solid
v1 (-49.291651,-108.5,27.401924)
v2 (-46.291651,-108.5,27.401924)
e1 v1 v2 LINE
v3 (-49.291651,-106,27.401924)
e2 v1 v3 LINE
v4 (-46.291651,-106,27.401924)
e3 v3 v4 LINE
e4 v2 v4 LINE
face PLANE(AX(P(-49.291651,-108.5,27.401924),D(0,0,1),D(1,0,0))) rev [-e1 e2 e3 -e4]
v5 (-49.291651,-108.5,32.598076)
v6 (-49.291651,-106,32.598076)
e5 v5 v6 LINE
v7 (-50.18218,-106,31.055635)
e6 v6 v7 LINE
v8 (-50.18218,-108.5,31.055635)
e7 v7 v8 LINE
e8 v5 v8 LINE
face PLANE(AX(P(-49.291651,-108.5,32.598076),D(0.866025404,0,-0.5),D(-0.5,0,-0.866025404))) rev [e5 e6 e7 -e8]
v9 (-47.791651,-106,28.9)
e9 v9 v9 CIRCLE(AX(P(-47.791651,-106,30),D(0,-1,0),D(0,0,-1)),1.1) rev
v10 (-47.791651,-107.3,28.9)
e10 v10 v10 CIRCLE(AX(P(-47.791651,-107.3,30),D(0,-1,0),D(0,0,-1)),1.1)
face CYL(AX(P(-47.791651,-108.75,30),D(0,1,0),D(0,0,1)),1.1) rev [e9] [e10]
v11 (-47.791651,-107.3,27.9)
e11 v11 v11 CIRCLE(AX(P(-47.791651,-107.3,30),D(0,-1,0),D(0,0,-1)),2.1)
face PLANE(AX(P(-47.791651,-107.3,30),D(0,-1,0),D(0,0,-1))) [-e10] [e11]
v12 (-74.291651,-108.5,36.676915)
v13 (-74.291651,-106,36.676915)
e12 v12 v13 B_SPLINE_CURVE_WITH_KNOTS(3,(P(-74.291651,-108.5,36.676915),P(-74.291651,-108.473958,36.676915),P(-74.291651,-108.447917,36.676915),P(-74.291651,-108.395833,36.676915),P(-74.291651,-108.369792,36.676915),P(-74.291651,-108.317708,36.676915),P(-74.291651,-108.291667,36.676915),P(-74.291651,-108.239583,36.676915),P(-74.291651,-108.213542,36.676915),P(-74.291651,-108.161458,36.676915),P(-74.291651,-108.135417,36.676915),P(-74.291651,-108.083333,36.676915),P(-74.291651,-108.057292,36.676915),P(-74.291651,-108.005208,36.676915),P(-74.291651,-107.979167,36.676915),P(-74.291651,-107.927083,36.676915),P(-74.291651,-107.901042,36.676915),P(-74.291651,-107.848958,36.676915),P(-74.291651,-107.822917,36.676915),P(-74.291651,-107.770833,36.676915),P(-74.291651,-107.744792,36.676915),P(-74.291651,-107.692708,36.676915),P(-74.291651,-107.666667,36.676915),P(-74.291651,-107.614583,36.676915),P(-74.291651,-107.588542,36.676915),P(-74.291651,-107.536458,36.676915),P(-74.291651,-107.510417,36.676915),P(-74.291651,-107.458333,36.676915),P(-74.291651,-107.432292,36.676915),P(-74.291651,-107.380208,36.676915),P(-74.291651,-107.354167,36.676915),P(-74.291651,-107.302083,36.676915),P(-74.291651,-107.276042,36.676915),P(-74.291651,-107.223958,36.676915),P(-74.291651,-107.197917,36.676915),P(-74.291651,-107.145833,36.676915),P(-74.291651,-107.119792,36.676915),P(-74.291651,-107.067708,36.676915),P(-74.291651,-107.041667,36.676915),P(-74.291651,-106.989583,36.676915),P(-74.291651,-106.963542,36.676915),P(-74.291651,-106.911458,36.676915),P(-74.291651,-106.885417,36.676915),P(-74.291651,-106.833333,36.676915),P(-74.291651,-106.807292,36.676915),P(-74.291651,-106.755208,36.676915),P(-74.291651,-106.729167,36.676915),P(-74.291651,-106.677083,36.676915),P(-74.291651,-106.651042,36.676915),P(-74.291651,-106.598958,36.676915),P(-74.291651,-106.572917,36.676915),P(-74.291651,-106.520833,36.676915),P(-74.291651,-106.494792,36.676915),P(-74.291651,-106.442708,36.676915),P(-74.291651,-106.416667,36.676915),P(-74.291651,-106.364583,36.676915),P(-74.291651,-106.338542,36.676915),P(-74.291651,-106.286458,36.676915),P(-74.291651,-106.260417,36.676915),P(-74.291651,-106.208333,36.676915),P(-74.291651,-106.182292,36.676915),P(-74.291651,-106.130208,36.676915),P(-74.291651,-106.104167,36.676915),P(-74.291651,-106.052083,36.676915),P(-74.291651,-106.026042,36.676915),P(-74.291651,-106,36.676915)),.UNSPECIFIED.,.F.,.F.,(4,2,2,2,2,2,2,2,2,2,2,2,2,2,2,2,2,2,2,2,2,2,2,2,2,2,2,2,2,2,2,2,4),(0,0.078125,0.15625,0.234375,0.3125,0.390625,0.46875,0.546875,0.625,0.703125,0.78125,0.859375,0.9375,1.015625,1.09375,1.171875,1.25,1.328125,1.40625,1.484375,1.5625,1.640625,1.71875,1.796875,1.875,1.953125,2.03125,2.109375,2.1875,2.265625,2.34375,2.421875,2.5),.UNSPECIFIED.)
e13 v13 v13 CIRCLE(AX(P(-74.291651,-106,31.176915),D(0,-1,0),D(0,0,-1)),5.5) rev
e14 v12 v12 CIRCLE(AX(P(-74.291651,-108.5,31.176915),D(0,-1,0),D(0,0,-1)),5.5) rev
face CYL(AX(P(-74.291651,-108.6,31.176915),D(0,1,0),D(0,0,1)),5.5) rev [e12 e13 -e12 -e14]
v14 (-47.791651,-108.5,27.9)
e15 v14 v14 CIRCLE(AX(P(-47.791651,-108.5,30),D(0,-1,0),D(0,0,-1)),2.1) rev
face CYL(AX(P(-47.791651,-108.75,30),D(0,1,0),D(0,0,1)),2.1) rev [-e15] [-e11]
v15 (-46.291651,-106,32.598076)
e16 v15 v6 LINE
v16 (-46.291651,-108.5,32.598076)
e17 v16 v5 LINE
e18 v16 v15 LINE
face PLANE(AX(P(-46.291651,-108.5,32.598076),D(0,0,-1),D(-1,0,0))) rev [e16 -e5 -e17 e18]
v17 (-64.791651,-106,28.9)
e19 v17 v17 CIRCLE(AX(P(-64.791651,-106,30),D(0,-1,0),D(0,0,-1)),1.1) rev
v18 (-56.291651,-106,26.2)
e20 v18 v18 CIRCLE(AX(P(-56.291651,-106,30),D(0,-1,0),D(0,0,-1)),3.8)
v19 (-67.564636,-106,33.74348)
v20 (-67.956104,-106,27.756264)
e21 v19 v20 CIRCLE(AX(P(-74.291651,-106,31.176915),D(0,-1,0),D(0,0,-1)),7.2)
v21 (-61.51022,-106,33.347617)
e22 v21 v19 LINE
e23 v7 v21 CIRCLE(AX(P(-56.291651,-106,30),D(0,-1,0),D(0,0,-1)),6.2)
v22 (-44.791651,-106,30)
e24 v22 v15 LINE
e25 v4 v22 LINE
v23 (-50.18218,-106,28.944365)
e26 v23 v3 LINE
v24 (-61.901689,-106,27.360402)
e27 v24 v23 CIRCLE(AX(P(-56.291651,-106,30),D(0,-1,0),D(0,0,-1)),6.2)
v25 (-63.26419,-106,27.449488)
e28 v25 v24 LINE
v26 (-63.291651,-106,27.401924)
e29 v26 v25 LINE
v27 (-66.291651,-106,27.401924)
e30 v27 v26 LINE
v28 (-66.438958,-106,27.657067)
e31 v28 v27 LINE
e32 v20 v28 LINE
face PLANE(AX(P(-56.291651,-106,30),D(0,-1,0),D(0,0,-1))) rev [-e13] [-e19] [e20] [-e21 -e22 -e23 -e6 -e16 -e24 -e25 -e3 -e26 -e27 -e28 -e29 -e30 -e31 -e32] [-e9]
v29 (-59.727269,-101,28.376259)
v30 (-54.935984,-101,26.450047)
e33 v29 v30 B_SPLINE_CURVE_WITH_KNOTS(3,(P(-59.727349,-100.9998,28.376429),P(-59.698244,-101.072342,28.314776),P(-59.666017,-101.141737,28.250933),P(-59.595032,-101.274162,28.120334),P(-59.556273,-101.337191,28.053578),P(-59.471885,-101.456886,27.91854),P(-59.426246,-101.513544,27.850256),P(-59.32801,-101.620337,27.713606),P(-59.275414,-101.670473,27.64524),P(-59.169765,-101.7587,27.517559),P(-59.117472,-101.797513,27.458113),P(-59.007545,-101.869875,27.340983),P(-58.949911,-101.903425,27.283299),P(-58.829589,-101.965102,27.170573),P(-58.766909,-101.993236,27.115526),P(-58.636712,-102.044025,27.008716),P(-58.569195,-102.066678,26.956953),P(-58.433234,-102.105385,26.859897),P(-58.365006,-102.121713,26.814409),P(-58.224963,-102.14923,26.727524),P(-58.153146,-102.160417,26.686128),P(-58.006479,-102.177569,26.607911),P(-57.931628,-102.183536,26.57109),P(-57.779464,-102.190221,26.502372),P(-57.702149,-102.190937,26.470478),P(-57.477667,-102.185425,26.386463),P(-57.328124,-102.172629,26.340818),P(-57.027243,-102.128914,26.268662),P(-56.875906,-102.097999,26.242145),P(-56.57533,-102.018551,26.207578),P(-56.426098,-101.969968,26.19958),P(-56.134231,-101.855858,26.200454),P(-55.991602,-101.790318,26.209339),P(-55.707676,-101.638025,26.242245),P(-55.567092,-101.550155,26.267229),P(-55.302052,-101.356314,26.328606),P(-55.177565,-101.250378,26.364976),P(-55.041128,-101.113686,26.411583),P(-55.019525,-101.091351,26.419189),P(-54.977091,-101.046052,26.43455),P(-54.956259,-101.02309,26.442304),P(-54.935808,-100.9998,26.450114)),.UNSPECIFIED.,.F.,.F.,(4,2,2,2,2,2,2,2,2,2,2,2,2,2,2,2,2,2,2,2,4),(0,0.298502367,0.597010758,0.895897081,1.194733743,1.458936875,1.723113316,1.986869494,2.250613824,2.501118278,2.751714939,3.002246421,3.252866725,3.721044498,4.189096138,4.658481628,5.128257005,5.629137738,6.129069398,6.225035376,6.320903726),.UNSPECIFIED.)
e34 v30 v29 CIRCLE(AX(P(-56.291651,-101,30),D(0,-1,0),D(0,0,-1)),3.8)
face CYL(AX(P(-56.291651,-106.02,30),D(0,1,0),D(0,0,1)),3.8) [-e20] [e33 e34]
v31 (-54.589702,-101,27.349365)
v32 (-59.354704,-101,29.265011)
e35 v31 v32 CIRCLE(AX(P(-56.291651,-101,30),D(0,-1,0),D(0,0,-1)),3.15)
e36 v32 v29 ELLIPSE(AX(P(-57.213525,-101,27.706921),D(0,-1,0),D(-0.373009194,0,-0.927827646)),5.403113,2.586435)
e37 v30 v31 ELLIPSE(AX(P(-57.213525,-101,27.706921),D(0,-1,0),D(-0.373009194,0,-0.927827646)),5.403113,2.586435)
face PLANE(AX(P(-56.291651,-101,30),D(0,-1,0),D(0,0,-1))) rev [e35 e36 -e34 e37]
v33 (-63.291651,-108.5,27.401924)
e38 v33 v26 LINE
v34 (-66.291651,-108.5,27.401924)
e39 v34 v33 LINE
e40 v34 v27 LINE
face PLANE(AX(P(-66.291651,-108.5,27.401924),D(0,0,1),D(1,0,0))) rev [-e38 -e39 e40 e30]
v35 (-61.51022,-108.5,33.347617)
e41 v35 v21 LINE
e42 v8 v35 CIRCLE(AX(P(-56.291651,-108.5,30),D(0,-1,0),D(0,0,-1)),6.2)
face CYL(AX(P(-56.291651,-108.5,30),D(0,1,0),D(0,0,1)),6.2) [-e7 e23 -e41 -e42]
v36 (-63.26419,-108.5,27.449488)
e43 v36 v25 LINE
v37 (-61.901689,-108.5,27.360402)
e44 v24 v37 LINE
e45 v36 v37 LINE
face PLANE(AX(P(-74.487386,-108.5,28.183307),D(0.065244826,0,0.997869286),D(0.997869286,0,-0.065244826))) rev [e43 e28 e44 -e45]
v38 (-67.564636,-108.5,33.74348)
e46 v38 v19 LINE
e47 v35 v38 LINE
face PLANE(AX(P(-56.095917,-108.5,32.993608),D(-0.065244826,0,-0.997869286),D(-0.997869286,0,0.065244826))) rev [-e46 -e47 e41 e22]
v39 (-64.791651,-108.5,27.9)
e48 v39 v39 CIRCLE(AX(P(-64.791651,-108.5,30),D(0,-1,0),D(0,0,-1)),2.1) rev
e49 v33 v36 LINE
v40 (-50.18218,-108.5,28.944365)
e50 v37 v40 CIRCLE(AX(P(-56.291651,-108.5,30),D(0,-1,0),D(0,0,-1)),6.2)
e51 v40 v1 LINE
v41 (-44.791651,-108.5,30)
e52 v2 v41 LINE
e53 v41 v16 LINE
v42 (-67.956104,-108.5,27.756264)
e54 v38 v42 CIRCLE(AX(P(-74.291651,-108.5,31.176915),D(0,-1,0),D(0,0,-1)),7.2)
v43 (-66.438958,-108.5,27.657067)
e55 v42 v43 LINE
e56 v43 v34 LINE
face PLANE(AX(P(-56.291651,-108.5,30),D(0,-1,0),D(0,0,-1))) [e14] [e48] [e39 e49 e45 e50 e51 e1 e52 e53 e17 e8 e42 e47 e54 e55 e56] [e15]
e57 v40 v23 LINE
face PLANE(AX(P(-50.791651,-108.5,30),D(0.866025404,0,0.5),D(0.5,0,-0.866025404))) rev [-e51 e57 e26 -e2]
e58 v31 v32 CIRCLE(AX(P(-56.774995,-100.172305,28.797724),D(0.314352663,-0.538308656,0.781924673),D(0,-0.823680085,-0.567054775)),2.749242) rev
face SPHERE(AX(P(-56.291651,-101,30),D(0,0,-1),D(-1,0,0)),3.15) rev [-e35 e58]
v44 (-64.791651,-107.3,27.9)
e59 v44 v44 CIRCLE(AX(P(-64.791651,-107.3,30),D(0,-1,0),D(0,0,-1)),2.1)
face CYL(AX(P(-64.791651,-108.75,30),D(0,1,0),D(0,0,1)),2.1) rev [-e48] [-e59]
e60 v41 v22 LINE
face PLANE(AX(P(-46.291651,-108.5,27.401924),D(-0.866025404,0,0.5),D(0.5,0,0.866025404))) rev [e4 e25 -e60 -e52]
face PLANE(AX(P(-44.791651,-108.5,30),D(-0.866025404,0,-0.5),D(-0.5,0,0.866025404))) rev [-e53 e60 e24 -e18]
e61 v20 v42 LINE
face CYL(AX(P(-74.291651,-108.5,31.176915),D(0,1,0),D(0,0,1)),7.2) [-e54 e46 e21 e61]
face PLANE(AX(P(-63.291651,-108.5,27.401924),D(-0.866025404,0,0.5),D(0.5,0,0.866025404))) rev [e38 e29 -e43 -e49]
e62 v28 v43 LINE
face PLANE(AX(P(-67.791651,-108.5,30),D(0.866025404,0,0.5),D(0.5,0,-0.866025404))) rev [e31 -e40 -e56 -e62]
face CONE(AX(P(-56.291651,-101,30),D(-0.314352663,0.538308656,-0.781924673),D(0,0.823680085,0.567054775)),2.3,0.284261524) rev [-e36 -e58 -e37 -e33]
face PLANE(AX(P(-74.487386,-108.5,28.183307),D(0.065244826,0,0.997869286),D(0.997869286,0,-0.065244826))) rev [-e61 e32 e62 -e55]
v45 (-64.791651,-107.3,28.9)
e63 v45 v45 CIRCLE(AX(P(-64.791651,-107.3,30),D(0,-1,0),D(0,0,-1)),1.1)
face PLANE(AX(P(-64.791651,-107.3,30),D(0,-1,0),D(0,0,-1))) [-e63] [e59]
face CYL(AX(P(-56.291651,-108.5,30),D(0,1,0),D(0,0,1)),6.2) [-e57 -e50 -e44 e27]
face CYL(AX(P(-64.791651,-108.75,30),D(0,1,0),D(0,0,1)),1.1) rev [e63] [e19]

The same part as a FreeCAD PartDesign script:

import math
import FreeCAD as App
import Part
import Sketcher

V = App.Vector
Q = App.Units.Quantity


def add_polygon(sketch, points):
    """Adds a closed chain of lines whose ends are joined by coincident constraints."""
    first, n = sketch.GeometryCount, len(points)
    for a, b in zip(points, points[1:] + points[:1]):
        sketch.addGeometry(Part.LineSegment(App.Vector(*a, 0), App.Vector(*b, 0)), False)
    for i in range(n):
        sketch.addConstraint(Sketcher.Constraint("Coincident", first + i, 2, first + (i + 1) % n, 1))

doc = App.newDocument("Part")
body = doc.addObject("PartDesign::Body", "Body")

# Sketch on XZ plane
sketch1 = doc.addObject("Sketcher::SketchObject", "Sketch")
body.addObject(sketch1)
sketch1.AttachmentSupport = (doc.XZ_Plane, [""])
sketch1.MapMode = "FlatFace"
sketch1.AttachmentOffset = App.Placement(V(0, 0, 101), App.Rotation())
sketch1.addGeometry(Part.Circle(V(-56.3, 30, 0), V(0, 0, 1), 3.8), False)
sketch1.addConstraint(Sketcher.Constraint("Diameter", 0, Q("7.6 mm")))
sketch1.addConstraint(Sketcher.Constraint("DistanceY", -1, 1, 0, 3, Q("30 mm")))
sketch1.addConstraint(Sketcher.Constraint("DistanceX", 0, 3, -1, 1, Q("56.291651 mm")))
pad1 = doc.addObject("PartDesign::Pad", "Pad")
body.addObject(pad1)
pad1.Profile = sketch1
pad1.Length = 5.02

# Sketch on XZ plane
sketch2 = doc.addObject("Sketcher::SketchObject", "Sketch001")
body.addObject(sketch2)
sketch2.AttachmentSupport = (doc.XZ_Plane, [""])
sketch2.MapMode = "FlatFace"
sketch2.AttachmentOffset = App.Placement(V(0, 0, 106), App.Rotation())
sketch2.addGeometry(Part.Circle(V(-56, 30, 0), V(0, 0, 1), 6), False)
sketch2.addConstraint(Sketcher.Constraint("Diameter", 0, Q("12.4 mm")))
sketch2.addConstraint(Sketcher.Constraint("DistanceY", -1, 1, 0, 3, Q("30 mm")))
sketch2.addConstraint(Sketcher.Constraint("DistanceX", 0, 3, -1, 1, Q("56.291651 mm")))
pad2 = doc.addObject("PartDesign::Pad", "Pad001")
body.addObject(pad2)
pad2.Profile = sketch2
pad2.Length = 2.5

# Sketch on XZ plane
sketch3 = doc.addObject("Sketcher::SketchObject", "Sketch002")
body.addObject(sketch3)
sketch3.AttachmentSupport = (doc.XZ_Plane, [""])
sketch3.MapMode = "FlatFace"
sketch3.AttachmentOffset = App.Placement(V(0, 0, 106), App.Rotation())
add_polygon(sketch3, [(-44.8, 30), (-46.3, 32.6), (-49.3, 32.6), (-50.8, 30), (-49.3, 27.4), (-46.3, 27.4)])  # lines 0-5
sketch3.addConstraint(Sketcher.Constraint("Horizontal", 1))
sketch3.addConstraint(Sketcher.Constraint("Horizontal", 4))
sketch3.addConstraint(Sketcher.Constraint("Parallel", 0, 3))
sketch3.addConstraint(Sketcher.Constraint("Parallel", 2, 5))
sketch3.addConstraint(Sketcher.Constraint("Horizontal", 2, 2, 5, 2))
sketch3.addConstraint(Sketcher.Constraint("Vertical", 1, 2, 3, 2))
sketch3.addConstraint(Sketcher.Constraint("Vertical", 0, 2, 4, 2))
sketch3.addConstraint(Sketcher.Constraint("DistanceX", 1, 2, 1, 1, Q("3 mm")))
sketch3.addConstraint(Sketcher.Constraint("Angle", 0, Q("120 deg")))
sketch3.addConstraint(Sketcher.Constraint("Distance", 0, Q("3 mm")))
sketch3.addConstraint(Sketcher.Constraint("DistanceY", -1, 1, 2, 2, Q("30 mm")))
sketch3.addConstraint(Sketcher.Constraint("DistanceX", 0, 2, -1, 1, Q("46.291651 mm")))
pad3 = doc.addObject("PartDesign::Pad", "Pad002")
body.addObject(pad3)
pad3.Profile = sketch3
pad3.Length = 2.5

# Sketch on XZ plane
sketch4 = doc.addObject("Sketcher::SketchObject", "Sketch003")
body.addObject(sketch4)
sketch4.AttachmentSupport = (doc.XZ_Plane, [""])
sketch4.MapMode = "FlatFace"
sketch4.AttachmentOffset = App.Placement(V(0, 0, 106), App.Rotation())
add_polygon(sketch4, [(-61.8, 30), (-63.3, 32.6), (-66.3, 32.6), (-67.8, 30), (-66.3, 27.4), (-63.3, 27.4)])  # lines 0-5
sketch4.addConstraint(Sketcher.Constraint("Horizontal", 1))
sketch4.addConstraint(Sketcher.Constraint("Horizontal", 4))
sketch4.addConstraint(Sketcher.Constraint("Parallel", 0, 3))
sketch4.addConstraint(Sketcher.Constraint("Parallel", 2, 5))
sketch4.addConstraint(Sketcher.Constraint("Horizontal", 2, 2, 5, 2))
sketch4.addConstraint(Sketcher.Constraint("Vertical", 1, 2, 3, 2))
sketch4.addConstraint(Sketcher.Constraint("Vertical", 0, 2, 4, 2))
sketch4.addConstraint(Sketcher.Constraint("DistanceX", 1, 2, 1, 1, Q("3 mm")))
sketch4.addConstraint(Sketcher.Constraint("Angle", 0, Q("120 deg")))
sketch4.addConstraint(Sketcher.Constraint("Distance", 0, Q("3 mm")))
sketch4.addConstraint(Sketcher.Constraint("DistanceY", -1, 1, 2, 2, Q("30 mm")))
sketch4.addConstraint(Sketcher.Constraint("DistanceX", 0, 2, -1, 1, Q("63.291651 mm")))
pad4 = doc.addObject("PartDesign::Pad", "Pad003")
body.addObject(pad4)
pad4.Profile = sketch4
pad4.Length = 2.5

# Sketch on XZ plane
sketch5 = doc.addObject("Sketcher::SketchObject", "Sketch004")
body.addObject(sketch5)
sketch5.AttachmentSupport = (doc.XZ_Plane, [""])
sketch5.MapMode = "FlatFace"
sketch5.AttachmentOffset = App.Placement(V(0, 0, 101), App.Rotation())
sketch5.addGeometry(Part.LineSegment(V(-56.3, 33.1, 0), V(-56.3, 26.9, 0)), False)
sketch5.addGeometry(Part.ArcOfCircle(Part.Circle(V(-56.3, 30, 0), V(0, 0, 1), 3.1), math.radians(-90), math.radians(90)), False)
sketch5.addGeometry(Part.LineSegment(V(-56.3, 26.9, 0), V(-56.3, 33.1, 0)), True)  # axis
sketch5.addConstraint(Sketcher.Constraint("Coincident", 0, 1, 1, 2))
sketch5.addConstraint(Sketcher.Constraint("Coincident", 1, 1, 0, 2))
sketch5.addConstraint(Sketcher.Constraint("Vertical", 0))
sketch5.addConstraint(Sketcher.Constraint("Vertical", 2))
sketch5.addConstraint(Sketcher.Constraint("Coincident", 2, 1, 1, 1))
sketch5.addConstraint(Sketcher.Constraint("Vertical", 1, 3, 0, 1))
sketch5.addConstraint(Sketcher.Constraint("Equal", 0, 2))
sketch5.addConstraint(Sketcher.Constraint("Radius", 1, Q("3.15 mm")))
sketch5.addConstraint(Sketcher.Constraint("DistanceY", -1, 1, 1, 3, Q("30 mm")))
sketch5.addConstraint(Sketcher.Constraint("DistanceX", 1, 3, -1, 1, Q("56.291651 mm")))
groove = doc.addObject("PartDesign::Groove", "Groove")
body.addObject(groove)
groove.Profile = sketch5
groove.ReferenceAxis = (sketch5, ["Axis0"])
groove.Angle = 360

# Sketch on XZ plane
sketch6 = doc.addObject("Sketcher::SketchObject", "Sketch005")
body.addObject(sketch6)
sketch6.AttachmentSupport = (doc.XZ_Plane, [""])
sketch6.MapMode = "FlatFace"
sketch6.AttachmentOffset = App.Placement(V(0, 0, 106), App.Rotation())
add_polygon(sketch6, [(-56, 33), (-74, 34), (-74, 28), (-56, 27)])  # lines 0-3
sketch6.addConstraint(Sketcher.Constraint("Perpendicular", 0, 1))
sketch6.addConstraint(Sketcher.Constraint("Perpendicular", 1, 2))
sketch6.addConstraint(Sketcher.Constraint("Perpendicular", 2, 3))
sketch6.addConstraint(Sketcher.Constraint("Distance", 1, Q("6 mm")))
sketch6.addConstraint(Sketcher.Constraint("DistanceX", 1, 2, 2, 2, Q("18 mm")))
sketch6.addConstraint(Sketcher.Constraint("DistanceY", 1, 2, 3, 2, Q("4.810301 mm")))
sketch6.addConstraint(Sketcher.Constraint("DistanceX", 0, 2, -1, 1, Q("74.095917 mm")))
sketch6.addConstraint(Sketcher.Constraint("DistanceY", -1, 1, 0, 2, Q("34.170522 mm")))
pad5 = doc.addObject("PartDesign::Pad", "Pad004")
body.addObject(pad5)
pad5.Profile = sketch6
pad5.Length = 2.5

# Sketch on XZ plane
sketch7 = doc.addObject("Sketcher::SketchObject", "Sketch006")
body.addObject(sketch7)
sketch7.AttachmentSupport = (doc.XZ_Plane, [""])
sketch7.MapMode = "FlatFace"
sketch7.AttachmentOffset = App.Placement(V(0, 0, 106), App.Rotation())
sketch7.addGeometry(Part.Circle(V(-74, 31, 0), V(0, 0, 1), 7), False)
sketch7.addConstraint(Sketcher.Constraint("Diameter", 0, Q("14.4 mm")))
sketch7.addConstraint(Sketcher.Constraint("DistanceX", 0, 3, -1, 1, Q("74.291651 mm")))
sketch7.addConstraint(Sketcher.Constraint("DistanceY", -1, 1, 0, 3, Q("31.176915 mm")))
pad6 = doc.addObject("PartDesign::Pad", "Pad005")
body.addObject(pad6)
pad6.Profile = sketch7
pad6.Length = 2.5

# Sketch on XZ plane
sketch8 = doc.addObject("Sketcher::SketchObject", "Sketch007")
body.addObject(sketch8)
sketch8.AttachmentSupport = (doc.XZ_Plane, [""])
sketch8.MapMode = "FlatFace"
sketch8.AttachmentOffset = App.Placement(V(0, 0, 105.9), App.Rotation())
sketch8.addGeometry(Part.Circle(V(-74, 31, 0), V(0, 0, 1), 6), False)
sketch8.addConstraint(Sketcher.Constraint("Diameter", 0, Q("11 mm")))
sketch8.addConstraint(Sketcher.Constraint("DistanceX", 0, 3, -1, 1, Q("74.291651 mm")))
sketch8.addConstraint(Sketcher.Constraint("DistanceY", -1, 1, 0, 3, Q("31.176915 mm")))
pocket1 = doc.addObject("PartDesign::Pocket", "Pocket")
body.addObject(pocket1)
pocket1.Profile = sketch8
pocket1.Length = 2.7
pocket1.Reversed = True

# Sketch on XZ plane
sketch9 = doc.addObject("Sketcher::SketchObject", "Sketch008")
body.addObject(sketch9)
sketch9.AttachmentSupport = (doc.XZ_Plane, [""])
sketch9.MapMode = "FlatFace"
sketch9.AttachmentOffset = App.Placement(V(0, 0, 105), App.Rotation())
sketch9.addGeometry(Part.Circle(V(-47.8, 30, 0), V(0, 0, 1), 1.1), False)
sketch9.addConstraint(Sketcher.Constraint("Diameter", 0, Q("2.2 mm")))
sketch9.addConstraint(Sketcher.Constraint("DistanceY", -1, 1, 0, 3, Q("30 mm")))
sketch9.addConstraint(Sketcher.Constraint("DistanceX", 0, 3, -1, 1, Q("47.791651 mm")))
pocket2 = doc.addObject("PartDesign::Pocket", "Pocket001")
body.addObject(pocket2)
pocket2.Profile = sketch9
pocket2.Length = 3.75
pocket2.Reversed = True

# Sketch on XZ plane
sketch10 = doc.addObject("Sketcher::SketchObject", "Sketch009")
body.addObject(sketch10)
sketch10.AttachmentSupport = (doc.XZ_Plane, [""])
sketch10.MapMode = "FlatFace"
sketch10.AttachmentOffset = App.Placement(V(0, 0, 107.3), App.Rotation())
sketch10.addGeometry(Part.Circle(V(-47.8, 30, 0), V(0, 0, 1), 2.1), False)
sketch10.addConstraint(Sketcher.Constraint("Diameter", 0, Q("4.2 mm")))
sketch10.addConstraint(Sketcher.Constraint("DistanceY", -1, 1, 0, 3, Q("30 mm")))
sketch10.addConstraint(Sketcher.Constraint("DistanceX", 0, 3, -1, 1, Q("47.791651 mm")))
pocket3 = doc.addObject("PartDesign::Pocket", "Pocket002")
body.addObject(pocket3)
pocket3.Profile = sketch10
pocket3.Length = 1.45
pocket3.Reversed = True

# Sketch on XZ plane
sketch11 = doc.addObject("Sketcher::SketchObject", "Sketch010")
body.addObject(sketch11)
sketch11.AttachmentSupport = (doc.XZ_Plane, [""])
sketch11.MapMode = "FlatFace"
sketch11.AttachmentOffset = App.Placement(V(0, 0, 105), App.Rotation())
sketch11.addGeometry(Part.Circle(V(-64.8, 30, 0), V(0, 0, 1), 1.1), False)
sketch11.addConstraint(Sketcher.Constraint("Diameter", 0, Q("2.2 mm")))
sketch11.addConstraint(Sketcher.Constraint("DistanceY", -1, 1, 0, 3, Q("30 mm")))
sketch11.addConstraint(Sketcher.Constraint("DistanceX", 0, 3, -1, 1, Q("64.791651 mm")))
pocket4 = doc.addObject("PartDesign::Pocket", "Pocket003")
body.addObject(pocket4)
pocket4.Profile = sketch11
pocket4.Length = 3.75
pocket4.Reversed = True

# Sketch on XZ plane
sketch12 = doc.addObject("Sketcher::SketchObject", "Sketch011")
body.addObject(sketch12)
sketch12.AttachmentSupport = (doc.XZ_Plane, [""])
sketch12.MapMode = "FlatFace"
sketch12.AttachmentOffset = App.Placement(V(0, 0, 107.3), App.Rotation())
sketch12.addGeometry(Part.Circle(V(-64.8, 30, 0), V(0, 0, 1), 2.1), False)
sketch12.addConstraint(Sketcher.Constraint("Diameter", 0, Q("4.2 mm")))
sketch12.addConstraint(Sketcher.Constraint("DistanceY", -1, 1, 0, 3, Q("30 mm")))
sketch12.addConstraint(Sketcher.Constraint("DistanceX", 0, 3, -1, 1, Q("64.791651 mm")))
pocket5 = doc.addObject("PartDesign::Pocket", "Pocket004")
body.addObject(pocket5)
pocket5.Profile = sketch12
pocket5.Length = 1.45
pocket5.Reversed = True

# Sketch on an angled plane
sketch13 = doc.addObject("Sketcher::SketchObject", "Sketch012")
body.addObject(sketch13)
sketch13.Placement = App.Placement(V(-75.194143, -14.119516, 20.50942), App.Rotation(V(-0.254478546, -0.047784493, -0.965897154), V(-0.184548819, 0.982823348, 0), V(0.949306275, 0.178255179, -0.258926028), "ZXY"))
add_polygon(sketch13, [(-9.8, -88.9), (-8.5, -90.7), (14.1, -82.7), (8.8, -75.4)])  # lines 0-3
sketch13.addGeometry(Part.LineSegment(V(-9.8, -88.9, 0), V(8.8, -75.4, 0)), True)  # axis
sketch13.addConstraint(Sketcher.Constraint("Coincident", 4, 1, 3, 2))
sketch13.addConstraint(Sketcher.Constraint("Coincident", 4, 2, 2, 2))
sketch13.addConstraint(Sketcher.Constraint("Parallel", 0, 2))
sketch13.addConstraint(Sketcher.Constraint("Perpendicular", 2, 3))
sketch13.addConstraint(Sketcher.Constraint("Distance", 3, Q("23 mm")))
sketch13.addConstraint(Sketcher.Constraint("Distance", 0, Q("2.3 mm")))
sketch13.addConstraint(Sketcher.Constraint("Distance", 2, Q("9.02 mm")))
sketch13.addConstraint(Sketcher.Constraint("DistanceY", 3, 2, -1, 1, Q("88.8766 mm")))
sketch13.addConstraint(Sketcher.Constraint("DistanceX", 0, 2, -1, 1, Q("8.475389 mm")))
sketch13.addConstraint(Sketcher.Constraint("DistanceY", 2, 2, -1, 1, Q("75.373859 mm")))
groove2 = doc.addObject("PartDesign::Groove", "Groove001")
body.addObject(groove2)
groove2.Profile = sketch13
groove2.ReferenceAxis = (sketch13, ["Axis0"])
groove2.Angle = 360

doc.recompute()
